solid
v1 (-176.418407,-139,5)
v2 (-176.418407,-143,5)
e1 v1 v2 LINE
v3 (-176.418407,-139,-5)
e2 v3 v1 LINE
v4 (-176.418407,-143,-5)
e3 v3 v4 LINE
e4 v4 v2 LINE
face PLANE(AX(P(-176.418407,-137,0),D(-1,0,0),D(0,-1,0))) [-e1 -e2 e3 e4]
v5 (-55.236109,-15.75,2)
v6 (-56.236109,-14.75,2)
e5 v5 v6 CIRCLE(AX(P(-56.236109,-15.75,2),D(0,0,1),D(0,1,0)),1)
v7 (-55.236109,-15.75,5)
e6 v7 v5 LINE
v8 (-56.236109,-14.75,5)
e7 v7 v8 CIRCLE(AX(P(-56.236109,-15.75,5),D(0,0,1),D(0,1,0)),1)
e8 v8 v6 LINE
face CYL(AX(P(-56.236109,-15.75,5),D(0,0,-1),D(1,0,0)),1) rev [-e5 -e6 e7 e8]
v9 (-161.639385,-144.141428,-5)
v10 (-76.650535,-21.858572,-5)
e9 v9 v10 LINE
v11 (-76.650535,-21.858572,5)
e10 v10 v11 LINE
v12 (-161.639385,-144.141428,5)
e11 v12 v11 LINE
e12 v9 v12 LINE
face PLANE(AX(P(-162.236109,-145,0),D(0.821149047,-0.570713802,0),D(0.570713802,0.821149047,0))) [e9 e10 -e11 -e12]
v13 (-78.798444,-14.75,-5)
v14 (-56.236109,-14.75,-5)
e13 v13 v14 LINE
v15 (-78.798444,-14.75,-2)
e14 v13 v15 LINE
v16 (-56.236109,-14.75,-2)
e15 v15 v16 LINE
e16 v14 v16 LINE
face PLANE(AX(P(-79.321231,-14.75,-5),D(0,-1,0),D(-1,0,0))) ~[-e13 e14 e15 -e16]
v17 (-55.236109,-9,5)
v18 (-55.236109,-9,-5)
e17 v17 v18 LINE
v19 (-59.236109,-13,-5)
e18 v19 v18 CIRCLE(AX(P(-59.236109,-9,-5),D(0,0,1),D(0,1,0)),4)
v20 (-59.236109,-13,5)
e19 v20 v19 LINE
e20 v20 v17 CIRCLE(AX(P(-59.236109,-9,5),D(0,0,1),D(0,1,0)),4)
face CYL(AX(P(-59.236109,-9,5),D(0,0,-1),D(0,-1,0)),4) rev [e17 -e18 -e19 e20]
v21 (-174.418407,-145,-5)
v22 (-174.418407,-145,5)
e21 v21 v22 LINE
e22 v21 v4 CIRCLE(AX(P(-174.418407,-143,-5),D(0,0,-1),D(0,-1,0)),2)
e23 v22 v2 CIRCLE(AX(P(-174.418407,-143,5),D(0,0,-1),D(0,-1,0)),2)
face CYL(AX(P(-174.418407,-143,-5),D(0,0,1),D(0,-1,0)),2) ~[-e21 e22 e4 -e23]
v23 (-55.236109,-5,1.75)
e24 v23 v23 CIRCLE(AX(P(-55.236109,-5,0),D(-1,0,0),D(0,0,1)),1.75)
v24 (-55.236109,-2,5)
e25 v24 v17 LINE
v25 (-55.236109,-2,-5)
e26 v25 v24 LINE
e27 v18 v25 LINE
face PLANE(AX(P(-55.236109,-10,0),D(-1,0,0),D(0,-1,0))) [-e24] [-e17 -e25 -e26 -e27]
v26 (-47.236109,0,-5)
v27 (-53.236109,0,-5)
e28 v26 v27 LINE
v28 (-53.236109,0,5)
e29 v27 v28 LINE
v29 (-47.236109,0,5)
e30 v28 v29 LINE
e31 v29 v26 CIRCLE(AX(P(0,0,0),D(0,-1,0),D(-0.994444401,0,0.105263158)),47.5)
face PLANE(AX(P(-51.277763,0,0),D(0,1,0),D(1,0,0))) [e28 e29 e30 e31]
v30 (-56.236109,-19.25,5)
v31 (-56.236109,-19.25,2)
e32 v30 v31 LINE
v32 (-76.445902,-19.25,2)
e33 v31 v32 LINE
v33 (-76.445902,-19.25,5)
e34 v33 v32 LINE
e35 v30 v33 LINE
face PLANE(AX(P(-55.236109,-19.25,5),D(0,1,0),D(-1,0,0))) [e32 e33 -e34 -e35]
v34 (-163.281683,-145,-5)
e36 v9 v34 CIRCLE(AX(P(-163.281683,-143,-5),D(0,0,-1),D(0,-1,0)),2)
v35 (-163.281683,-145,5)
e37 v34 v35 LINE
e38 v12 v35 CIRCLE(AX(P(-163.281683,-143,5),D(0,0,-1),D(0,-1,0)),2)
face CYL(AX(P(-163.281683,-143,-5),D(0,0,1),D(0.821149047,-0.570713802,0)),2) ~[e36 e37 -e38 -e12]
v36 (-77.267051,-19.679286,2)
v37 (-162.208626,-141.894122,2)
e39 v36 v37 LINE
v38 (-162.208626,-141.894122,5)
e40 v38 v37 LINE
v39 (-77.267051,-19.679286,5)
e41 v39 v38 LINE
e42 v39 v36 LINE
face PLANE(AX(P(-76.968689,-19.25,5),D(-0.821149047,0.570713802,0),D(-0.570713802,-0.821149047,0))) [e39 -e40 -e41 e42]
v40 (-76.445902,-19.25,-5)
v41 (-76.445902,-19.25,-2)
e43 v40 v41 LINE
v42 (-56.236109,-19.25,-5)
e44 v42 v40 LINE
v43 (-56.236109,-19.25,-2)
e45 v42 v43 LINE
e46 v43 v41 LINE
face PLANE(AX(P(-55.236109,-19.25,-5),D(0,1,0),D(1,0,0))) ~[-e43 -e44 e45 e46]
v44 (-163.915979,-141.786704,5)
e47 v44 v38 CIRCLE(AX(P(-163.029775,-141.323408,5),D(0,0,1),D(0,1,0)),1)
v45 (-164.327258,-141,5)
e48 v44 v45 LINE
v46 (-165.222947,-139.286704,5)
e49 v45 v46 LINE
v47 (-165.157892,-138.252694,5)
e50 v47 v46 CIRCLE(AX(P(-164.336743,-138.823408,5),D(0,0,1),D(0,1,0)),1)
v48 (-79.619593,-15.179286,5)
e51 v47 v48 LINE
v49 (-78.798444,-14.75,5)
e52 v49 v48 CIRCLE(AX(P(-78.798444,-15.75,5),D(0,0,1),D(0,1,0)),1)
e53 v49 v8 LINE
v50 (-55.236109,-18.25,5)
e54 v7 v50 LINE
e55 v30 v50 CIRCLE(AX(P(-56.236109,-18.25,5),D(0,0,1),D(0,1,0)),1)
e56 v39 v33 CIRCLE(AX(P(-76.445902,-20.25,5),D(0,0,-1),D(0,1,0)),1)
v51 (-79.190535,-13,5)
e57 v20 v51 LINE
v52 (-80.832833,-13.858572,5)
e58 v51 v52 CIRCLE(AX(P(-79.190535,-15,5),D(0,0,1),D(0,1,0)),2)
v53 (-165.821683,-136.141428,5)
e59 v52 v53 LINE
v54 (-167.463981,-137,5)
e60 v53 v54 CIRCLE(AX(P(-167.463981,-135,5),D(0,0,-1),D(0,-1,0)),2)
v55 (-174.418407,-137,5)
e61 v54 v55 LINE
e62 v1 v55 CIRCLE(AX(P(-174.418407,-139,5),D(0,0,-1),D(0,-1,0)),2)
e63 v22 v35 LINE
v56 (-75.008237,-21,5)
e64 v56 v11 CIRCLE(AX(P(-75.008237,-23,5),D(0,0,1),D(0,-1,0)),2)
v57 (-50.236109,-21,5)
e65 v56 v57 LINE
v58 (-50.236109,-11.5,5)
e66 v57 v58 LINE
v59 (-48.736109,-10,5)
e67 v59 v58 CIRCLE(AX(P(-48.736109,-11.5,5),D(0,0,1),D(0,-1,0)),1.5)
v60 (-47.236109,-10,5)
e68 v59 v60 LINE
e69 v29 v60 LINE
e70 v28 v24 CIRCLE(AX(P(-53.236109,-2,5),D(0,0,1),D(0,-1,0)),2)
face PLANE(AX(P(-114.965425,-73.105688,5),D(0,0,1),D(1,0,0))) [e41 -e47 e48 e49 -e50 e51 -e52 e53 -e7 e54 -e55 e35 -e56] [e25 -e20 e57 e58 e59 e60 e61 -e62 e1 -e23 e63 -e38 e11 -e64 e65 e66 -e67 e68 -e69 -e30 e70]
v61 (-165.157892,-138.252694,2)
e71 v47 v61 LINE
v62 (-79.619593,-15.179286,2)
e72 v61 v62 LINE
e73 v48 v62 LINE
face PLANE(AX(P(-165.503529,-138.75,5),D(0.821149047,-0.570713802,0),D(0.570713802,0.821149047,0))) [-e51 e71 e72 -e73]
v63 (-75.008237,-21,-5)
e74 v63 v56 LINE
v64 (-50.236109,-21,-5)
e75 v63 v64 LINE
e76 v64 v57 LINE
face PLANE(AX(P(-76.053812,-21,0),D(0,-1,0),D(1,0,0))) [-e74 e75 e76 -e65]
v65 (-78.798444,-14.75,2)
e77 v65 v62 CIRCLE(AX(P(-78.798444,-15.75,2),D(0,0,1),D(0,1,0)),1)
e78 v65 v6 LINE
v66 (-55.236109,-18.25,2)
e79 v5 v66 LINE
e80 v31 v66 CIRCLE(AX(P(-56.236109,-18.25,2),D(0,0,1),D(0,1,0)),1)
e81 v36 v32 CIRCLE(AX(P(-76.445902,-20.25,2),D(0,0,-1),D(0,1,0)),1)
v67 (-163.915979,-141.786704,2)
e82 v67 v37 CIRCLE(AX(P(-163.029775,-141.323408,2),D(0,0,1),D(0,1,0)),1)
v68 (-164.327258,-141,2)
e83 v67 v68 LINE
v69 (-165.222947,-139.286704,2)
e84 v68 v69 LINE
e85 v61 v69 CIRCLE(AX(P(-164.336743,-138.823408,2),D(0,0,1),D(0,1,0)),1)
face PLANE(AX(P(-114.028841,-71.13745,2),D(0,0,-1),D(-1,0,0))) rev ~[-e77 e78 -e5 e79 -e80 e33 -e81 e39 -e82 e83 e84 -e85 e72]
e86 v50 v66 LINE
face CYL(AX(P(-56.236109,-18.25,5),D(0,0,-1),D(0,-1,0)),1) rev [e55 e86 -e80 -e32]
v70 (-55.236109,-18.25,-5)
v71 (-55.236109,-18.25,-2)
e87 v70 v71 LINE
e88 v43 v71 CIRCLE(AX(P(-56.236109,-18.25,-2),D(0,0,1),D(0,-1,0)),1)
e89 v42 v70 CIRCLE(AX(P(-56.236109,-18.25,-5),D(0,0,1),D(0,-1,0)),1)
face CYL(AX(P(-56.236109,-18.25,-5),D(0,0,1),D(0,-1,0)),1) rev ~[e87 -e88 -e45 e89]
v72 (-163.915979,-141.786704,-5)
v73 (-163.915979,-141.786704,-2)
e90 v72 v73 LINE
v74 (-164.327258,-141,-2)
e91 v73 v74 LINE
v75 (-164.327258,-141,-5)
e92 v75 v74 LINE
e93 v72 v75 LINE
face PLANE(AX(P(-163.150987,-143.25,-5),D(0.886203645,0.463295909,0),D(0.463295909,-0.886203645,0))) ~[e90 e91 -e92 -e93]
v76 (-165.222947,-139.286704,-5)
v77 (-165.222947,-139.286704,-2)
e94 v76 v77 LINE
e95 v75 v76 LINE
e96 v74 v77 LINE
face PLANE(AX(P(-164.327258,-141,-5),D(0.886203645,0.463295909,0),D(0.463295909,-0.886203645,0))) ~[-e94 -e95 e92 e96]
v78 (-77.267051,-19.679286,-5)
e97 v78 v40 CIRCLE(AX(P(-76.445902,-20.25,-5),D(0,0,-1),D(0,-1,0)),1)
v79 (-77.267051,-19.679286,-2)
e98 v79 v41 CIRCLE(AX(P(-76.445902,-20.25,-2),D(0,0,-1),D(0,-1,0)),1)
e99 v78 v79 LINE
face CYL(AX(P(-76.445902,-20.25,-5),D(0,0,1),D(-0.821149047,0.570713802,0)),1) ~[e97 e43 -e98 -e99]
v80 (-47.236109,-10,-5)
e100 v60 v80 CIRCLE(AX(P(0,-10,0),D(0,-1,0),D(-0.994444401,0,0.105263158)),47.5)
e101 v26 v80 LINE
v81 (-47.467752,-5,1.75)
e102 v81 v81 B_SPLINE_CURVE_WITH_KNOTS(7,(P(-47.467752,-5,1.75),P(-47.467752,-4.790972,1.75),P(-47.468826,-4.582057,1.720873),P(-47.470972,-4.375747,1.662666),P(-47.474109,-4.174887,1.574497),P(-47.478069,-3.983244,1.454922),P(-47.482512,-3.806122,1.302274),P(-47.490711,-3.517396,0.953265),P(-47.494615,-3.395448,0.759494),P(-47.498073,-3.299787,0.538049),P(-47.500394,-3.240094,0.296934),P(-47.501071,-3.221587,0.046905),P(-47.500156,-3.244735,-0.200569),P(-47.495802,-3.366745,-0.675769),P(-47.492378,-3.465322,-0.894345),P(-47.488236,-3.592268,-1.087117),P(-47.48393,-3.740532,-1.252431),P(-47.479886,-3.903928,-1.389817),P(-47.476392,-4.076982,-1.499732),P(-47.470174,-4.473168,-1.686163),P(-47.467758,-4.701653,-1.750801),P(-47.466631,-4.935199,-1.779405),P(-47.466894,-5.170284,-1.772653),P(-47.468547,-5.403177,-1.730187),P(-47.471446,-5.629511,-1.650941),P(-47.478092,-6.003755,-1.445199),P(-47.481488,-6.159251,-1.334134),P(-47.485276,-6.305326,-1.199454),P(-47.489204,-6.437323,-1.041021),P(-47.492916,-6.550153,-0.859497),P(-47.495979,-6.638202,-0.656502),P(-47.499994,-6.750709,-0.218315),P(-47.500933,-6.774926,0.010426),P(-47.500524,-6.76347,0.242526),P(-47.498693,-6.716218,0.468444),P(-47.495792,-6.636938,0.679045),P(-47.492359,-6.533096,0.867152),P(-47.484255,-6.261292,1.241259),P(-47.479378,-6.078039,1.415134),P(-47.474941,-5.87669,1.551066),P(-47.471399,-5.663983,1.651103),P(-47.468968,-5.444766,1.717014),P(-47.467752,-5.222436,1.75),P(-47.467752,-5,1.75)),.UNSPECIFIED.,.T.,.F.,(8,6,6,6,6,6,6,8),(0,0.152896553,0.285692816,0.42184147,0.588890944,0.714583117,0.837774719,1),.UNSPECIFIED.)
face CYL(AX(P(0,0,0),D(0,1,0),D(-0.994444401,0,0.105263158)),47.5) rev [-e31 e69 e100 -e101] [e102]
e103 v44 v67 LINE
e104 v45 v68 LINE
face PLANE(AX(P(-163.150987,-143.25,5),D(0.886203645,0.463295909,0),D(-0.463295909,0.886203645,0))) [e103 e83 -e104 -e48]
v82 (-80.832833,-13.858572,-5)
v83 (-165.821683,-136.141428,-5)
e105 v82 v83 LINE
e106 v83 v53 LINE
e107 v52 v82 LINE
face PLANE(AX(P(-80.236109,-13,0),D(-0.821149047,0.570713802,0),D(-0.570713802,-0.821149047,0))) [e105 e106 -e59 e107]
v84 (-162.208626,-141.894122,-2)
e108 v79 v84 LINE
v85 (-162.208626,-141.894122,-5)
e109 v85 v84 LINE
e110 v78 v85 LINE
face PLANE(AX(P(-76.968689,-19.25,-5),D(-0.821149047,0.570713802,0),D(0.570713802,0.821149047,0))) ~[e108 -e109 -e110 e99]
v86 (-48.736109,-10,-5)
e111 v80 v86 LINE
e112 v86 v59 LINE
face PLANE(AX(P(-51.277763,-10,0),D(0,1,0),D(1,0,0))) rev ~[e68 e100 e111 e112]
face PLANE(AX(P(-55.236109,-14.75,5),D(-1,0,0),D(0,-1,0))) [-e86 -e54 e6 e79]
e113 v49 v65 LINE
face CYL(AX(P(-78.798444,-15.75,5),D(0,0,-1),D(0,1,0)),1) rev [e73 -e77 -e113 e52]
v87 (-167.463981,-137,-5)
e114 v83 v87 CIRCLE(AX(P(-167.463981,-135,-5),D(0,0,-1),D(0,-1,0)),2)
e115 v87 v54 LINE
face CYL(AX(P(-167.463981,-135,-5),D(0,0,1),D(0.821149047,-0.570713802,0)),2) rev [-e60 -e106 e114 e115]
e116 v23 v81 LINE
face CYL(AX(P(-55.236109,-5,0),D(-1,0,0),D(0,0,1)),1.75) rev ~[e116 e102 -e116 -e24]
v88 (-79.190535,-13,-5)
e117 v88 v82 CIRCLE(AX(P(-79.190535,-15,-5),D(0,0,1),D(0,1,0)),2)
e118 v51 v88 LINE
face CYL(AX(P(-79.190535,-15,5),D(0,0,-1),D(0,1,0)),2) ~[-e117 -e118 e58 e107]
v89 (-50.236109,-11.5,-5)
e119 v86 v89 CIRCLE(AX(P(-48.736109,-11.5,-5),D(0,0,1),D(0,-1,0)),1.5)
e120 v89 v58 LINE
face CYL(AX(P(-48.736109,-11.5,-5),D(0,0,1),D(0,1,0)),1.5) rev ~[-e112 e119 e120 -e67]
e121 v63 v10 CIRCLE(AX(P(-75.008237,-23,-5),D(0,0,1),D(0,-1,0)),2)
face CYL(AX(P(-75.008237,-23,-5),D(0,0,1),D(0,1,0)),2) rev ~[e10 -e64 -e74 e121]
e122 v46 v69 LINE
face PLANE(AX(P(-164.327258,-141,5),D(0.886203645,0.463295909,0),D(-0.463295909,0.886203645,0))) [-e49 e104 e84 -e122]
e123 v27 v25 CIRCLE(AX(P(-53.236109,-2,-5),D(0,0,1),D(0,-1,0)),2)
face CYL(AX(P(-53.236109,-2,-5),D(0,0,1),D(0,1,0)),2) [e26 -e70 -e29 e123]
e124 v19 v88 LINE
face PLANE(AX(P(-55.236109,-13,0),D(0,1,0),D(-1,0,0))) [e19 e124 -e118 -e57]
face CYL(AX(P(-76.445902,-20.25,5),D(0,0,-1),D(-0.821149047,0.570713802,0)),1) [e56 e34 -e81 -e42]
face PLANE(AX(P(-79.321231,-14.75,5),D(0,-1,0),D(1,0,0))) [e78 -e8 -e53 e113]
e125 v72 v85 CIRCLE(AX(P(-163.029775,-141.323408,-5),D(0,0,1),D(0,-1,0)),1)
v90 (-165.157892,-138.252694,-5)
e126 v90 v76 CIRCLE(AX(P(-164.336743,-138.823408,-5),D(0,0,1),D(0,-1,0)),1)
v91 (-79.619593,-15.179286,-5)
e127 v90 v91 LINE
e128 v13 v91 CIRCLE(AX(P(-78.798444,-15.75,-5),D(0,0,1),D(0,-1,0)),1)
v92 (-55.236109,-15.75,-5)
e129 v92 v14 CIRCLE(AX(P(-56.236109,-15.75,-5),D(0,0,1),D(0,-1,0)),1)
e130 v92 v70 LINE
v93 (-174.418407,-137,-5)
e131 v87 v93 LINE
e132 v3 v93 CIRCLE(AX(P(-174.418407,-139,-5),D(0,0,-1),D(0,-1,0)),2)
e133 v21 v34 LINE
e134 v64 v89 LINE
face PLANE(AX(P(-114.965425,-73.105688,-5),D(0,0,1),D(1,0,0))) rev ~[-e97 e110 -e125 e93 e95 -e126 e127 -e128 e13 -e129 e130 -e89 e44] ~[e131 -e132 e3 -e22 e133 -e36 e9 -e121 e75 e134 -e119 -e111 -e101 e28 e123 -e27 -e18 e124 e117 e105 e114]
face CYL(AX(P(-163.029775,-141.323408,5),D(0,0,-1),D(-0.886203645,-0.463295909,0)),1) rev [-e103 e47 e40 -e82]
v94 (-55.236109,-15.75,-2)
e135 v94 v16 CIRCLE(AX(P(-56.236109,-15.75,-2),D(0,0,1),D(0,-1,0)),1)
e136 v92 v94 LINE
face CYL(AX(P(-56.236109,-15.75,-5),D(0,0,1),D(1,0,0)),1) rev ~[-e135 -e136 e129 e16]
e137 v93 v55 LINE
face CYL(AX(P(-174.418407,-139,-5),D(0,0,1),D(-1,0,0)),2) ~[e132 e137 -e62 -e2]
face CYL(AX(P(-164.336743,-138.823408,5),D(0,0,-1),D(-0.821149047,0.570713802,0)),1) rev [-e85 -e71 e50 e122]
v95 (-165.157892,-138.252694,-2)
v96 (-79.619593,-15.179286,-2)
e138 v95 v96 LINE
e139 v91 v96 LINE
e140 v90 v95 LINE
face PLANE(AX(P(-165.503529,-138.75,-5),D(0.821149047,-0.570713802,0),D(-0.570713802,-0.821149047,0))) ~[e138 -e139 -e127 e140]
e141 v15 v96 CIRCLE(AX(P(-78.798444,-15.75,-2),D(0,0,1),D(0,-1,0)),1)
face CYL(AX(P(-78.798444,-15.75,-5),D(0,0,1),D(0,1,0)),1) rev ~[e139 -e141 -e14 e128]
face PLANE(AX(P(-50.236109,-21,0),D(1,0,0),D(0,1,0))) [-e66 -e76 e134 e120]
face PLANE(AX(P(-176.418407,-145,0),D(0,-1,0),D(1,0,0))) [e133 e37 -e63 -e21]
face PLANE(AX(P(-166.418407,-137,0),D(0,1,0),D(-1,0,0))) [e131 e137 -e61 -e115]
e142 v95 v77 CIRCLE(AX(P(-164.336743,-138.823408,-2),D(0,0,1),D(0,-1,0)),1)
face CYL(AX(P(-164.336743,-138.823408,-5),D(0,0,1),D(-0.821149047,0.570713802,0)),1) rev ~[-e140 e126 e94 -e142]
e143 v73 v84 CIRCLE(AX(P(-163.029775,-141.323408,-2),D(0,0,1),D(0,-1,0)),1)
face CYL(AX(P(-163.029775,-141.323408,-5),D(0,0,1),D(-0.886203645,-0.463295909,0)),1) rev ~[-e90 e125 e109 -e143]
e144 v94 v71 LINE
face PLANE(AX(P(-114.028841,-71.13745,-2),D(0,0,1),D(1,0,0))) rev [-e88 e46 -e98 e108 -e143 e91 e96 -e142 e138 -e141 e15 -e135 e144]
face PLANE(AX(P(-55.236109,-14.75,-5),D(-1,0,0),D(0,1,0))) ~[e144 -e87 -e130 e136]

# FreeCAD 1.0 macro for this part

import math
import FreeCAD as App
import Part
import Sketcher
from FreeCAD import Vector
Q = App.Units.Quantity


def edges_at(feature, points):
    """Names of the edges that pass closest to the given points."""
    edges = feature.Shape.Edges
    near = lambda p: min(range(len(edges)), key=lambda i: edges[i].distToShape(Part.Vertex(*p))[0])
    return sorted({f"Edge{near(p) + 1}" for p in points})


def add_polygon(sketch, points):
    """Adds a closed chain of lines whose ends are joined by coincident constraints."""
    first, n = sketch.GeometryCount, len(points)
    for a, b in zip(points, points[1:] + points[:1]):
        sketch.addGeometry(Part.LineSegment(App.Vector(*a, 0), App.Vector(*b, 0)), False)
    for i in range(n):
        sketch.addConstraint(Sketcher.Constraint("Coincident", first + i, 2, first + (i + 1) % n, 1))

doc = App.newDocument("Part")
body = doc.addObject("PartDesign::Body", "Body")

sketch1 = doc.addObject("Sketcher::SketchObject", "Sketch")
body.addObject(sketch1)
sketch1.AttachmentSupport = (doc.XZ_Plane, [""])
sketch1.MapMode = "FlatFace"
sketch1.addGeometry(Part.LineSegment(Vector(-47, -5, 0), Vector(-55, -5, 0)), False)
sketch1.addGeometry(Part.LineSegment(Vector(-55, -5, 0), Vector(-55, 5, 0)), False)
sketch1.addGeometry(Part.LineSegment(Vector(-55, 5, 0), Vector(-47, 5, 0)), False)
sketch1.addGeometry(Part.ArcOfCircle(Part.Circle(Vector(0, 0, 0), Vector(0, 0, 1), 47), math.radians(173.96), math.radians(186.04)), False)
sketch1.addConstraint(Sketcher.Constraint("Coincident", 0, 2, 1, 1))
sketch1.addConstraint(Sketcher.Constraint("Coincident", 1, 2, 2, 1))
sketch1.addConstraint(Sketcher.Constraint("Coincident", 2, 2, 3, 1))
sketch1.addConstraint(Sketcher.Constraint("Coincident", 3, 2, 0, 1))
sketch1.addConstraint(Sketcher.Constraint("Horizontal", 0))
sketch1.addConstraint(Sketcher.Constraint("Vertical", 1))
sketch1.addConstraint(Sketcher.Constraint("Horizontal", 2))
sketch1.addConstraint(Sketcher.Constraint("Coincident", 3, 3, -1, 1))
sketch1.addConstraint(Sketcher.Constraint("Vertical", 2, 2, 3, 2))
sketch1.addConstraint(Sketcher.Constraint("Radius", 3, Q("47.5 mm")))
sketch1.addConstraint(Sketcher.Constraint("DistanceX", 0, 2, 0, 1, Q("8 mm")))
sketch1.addConstraint(Sketcher.Constraint("DistanceY", 1, 1, 1, 2, Q("10 mm")))
pad1 = doc.addObject("PartDesign::Pad", "Pad")
body.addObject(pad1)
pad1.Profile = sketch1
pad1.Length = 10

sketch2 = doc.addObject("Sketcher::SketchObject", "Sketch001")
body.addObject(sketch2)
sketch2.AttachmentSupport = (doc.YZ_Plane, [""])
sketch2.MapMode = "FlatFace"
sketch2.AttachmentOffset = App.Placement(Vector(0, 0, -55.236109), App.Rotation())
sketch2.addGeometry(Part.Circle(Vector(-5, 0, 0), Vector(0, 0, 1), 1.8), False)
sketch2.addConstraint(Sketcher.Constraint("PointOnObject", 0, 3, -1))
sketch2.addConstraint(Sketcher.Constraint("Diameter", 0, Q("3.5 mm")))
sketch2.addConstraint(Sketcher.Constraint("DistanceX", 0, 3, -1, 1, Q("5 mm")))
pocket1 = doc.addObject("PartDesign::Pocket", "Pocket")
body.addObject(pocket1)
pocket1.Profile = sketch2
pocket1.Length = 10
pocket1.Reversed = True

sketch3 = doc.addObject("Sketcher::SketchObject", "Sketch002")
body.addObject(sketch3)
sketch3.AttachmentSupport = (doc.XY_Plane, [""])
sketch3.MapMode = "FlatFace"
add_polygon(sketch3, [(-80.2, -13), (-166.4, -137), (-176.4, -137), (-176.4, -145), (-162.2, -145), (-76.1, -21), (-50.2, -21), (-50.2, -10), (-55.2, -10), (-55.2, -13)])
sketch3.addConstraint(Sketcher.Constraint("Horizontal", 1))
sketch3.addConstraint(Sketcher.Constraint("Vertical", 2))
sketch3.addConstraint(Sketcher.Constraint("Horizontal", 3))
sketch3.addConstraint(Sketcher.Constraint("Horizontal", 5))
sketch3.addConstraint(Sketcher.Constraint("Vertical", 6))
sketch3.addConstraint(Sketcher.Constraint("Horizontal", 7))
sketch3.addConstraint(Sketcher.Constraint("Vertical", 8))
sketch3.addConstraint(Sketcher.Constraint("Horizontal", 9))
sketch3.addConstraint(Sketcher.Constraint("Parallel", 0, 4))
sketch3.addConstraint(Sketcher.Constraint("Equal", 0, 4))
sketch3.addConstraint(Sketcher.Constraint("DistanceX", 1, 2, 1, 1, Q("10 mm")))
sketch3.addConstraint(Sketcher.Constraint("DistanceX", 7, 2, 7, 1, Q("5 mm")))
sketch3.addConstraint(Sketcher.Constraint("DistanceX", 9, 2, 9, 1, Q("25 mm")))
sketch3.addConstraint(Sketcher.Constraint("DistanceY", 2, 2, 2, 1, Q("8 mm")))
sketch3.addConstraint(Sketcher.Constraint("DistanceY", 6, 1, 6, 2, Q("11 mm")))
sketch3.addConstraint(Sketcher.Constraint("DistanceY", 0, 2, -1, 1, Q("137 mm")))
sketch3.addConstraint(Sketcher.Constraint("DistanceY", 4, 2, -1, 1, Q("21 mm")))
sketch3.addConstraint(Sketcher.Constraint("Angle", 0, Q("-124.800016 deg")))
sketch3.addConstraint(Sketcher.Constraint("DistanceX", 3, 2, 5, 2, Q("112 mm")))
sketch3.addConstraint(Sketcher.Constraint("DistanceX", 3, 2, -1, 1, Q("162.236109 mm")))
pad2 = doc.addObject("PartDesign::Pad", "Pad001")
body.addObject(pad2)
pad2.Profile = sketch3
pad2.Length = 10
pad2.Midplane = True

sketch4 = doc.addObject("Sketcher::SketchObject", "Sketch003")
body.addObject(sketch4)
sketch4.AttachmentSupport = (doc.XY_Plane, [""])
sketch4.MapMode = "FlatFace"
sketch4.AttachmentOffset = App.Placement(Vector(0, 0, 5), App.Rotation())
add_polygon(sketch4, [(-165.5, -138.8), (-164.3, -141), (-163.2, -143.2), (-77, -19.2), (-55.2, -19.2), (-55.2, -14.8), (-79.3, -14.8)])
sketch4.addConstraint(Sketcher.Constraint("Horizontal", 3))
sketch4.addConstraint(Sketcher.Constraint("Vertical", 4))
sketch4.addConstraint(Sketcher.Constraint("Horizontal", 5))
sketch4.addConstraint(Sketcher.Constraint("Parallel", 0, 1))
sketch4.addConstraint(Sketcher.Constraint("Parallel", 2, 6))
sketch4.addConstraint(Sketcher.Constraint("Equal", 0, 1))
sketch4.addConstraint(Sketcher.Constraint("Equal", 2, 6))
sketch4.addConstraint(Sketcher.Constraint("DistanceY", 4, 1, 4, 2, Q("4.5 mm")))
sketch4.addConstraint(Sketcher.Constraint("DistanceY", 0, 2, -1, 1, Q("141 mm")))
sketch4.addConstraint(Sketcher.Constraint("Angle", 0, Q("-62.400008 deg")))
sketch4.addConstraint(Sketcher.Constraint("Angle", 2, Q("55.199984 deg")))
sketch4.addConstraint(Sketcher.Constraint("DistanceY", 1, 2, 2, 2, Q("124 mm")))
sketch4.addConstraint(Sketcher.Constraint("DistanceX", 3, 1, 3, 2, Q("21.73258 mm")))
sketch4.addConstraint(Sketcher.Constraint("DistanceX", 2, 2, -1, 1, Q("76.968689 mm")))
pocket2 = doc.addObject("PartDesign::Pocket", "Pocket001")
body.addObject(pocket2)
pocket2.Profile = sketch4
pocket2.Length = 3
doc.recompute()

mirrored = doc.addObject("PartDesign::Mirrored", "Mirrored")
body.addObject(mirrored)
mirrored.Originals = [pocket2]
mirrored.MirrorPlane = (doc.XY_Plane, [""])
body.Tip = mirrored
doc.recompute()

fillet = doc.addObject("PartDesign::Fillet", "Fillet")
body.addObject(fillet)
fillet.Base = (mirrored, edges_at(mirrored, [(-55.236, -13, 0)]))
fillet.Radius = 4
doc.recompute()

fillet2 = doc.addObject("PartDesign::Fillet", "Fillet001")
body.addObject(fillet2)
fillet2.Base = (fillet, edges_at(fillet, [(-50.236, -10, 0)]))
fillet2.Radius = 1.5
doc.recompute()

fillet3 = doc.addObject("PartDesign::Fillet", "Fillet002")
body.addObject(fillet3)
fillet3.Base = (fillet2, edges_at(fillet2, [
    (-80.236, -13, 0),
    (-166.418, -137, 0),
    (-176.418, -137, 0),
    (-176.418, -145, 0),
    (-162.236, -145, 0),
    (-76.054, -21, 0),
    (-55.236, 0, 0),
]))
fillet3.Radius = 2
doc.recompute()

fillet4 = doc.addObject("PartDesign::Fillet", "Fillet003")
body.addObject(fillet4)
fillet4.Base = (fillet3, edges_at(fillet3, [
    (-55.236, -14.75, 3.5),
    (-55.236, -19.25, 3.5),
    (-76.969, -19.25, 3.5),
    (-163.151, -143.25, 3.5),
    (-165.504, -138.75, 3.5),
    (-79.321, -14.75, 3.5),
    (-55.236, -19.25, -3.5),
    (-55.236, -14.75, -3.5),
    (-79.321, -14.75, -3.5),
    (-165.504, -138.75, -3.5),
    (-163.151, -143.25, -3.5),
    (-76.969, -19.25, -3.5),
]))
fillet4.Radius = 1

doc.recompute()
